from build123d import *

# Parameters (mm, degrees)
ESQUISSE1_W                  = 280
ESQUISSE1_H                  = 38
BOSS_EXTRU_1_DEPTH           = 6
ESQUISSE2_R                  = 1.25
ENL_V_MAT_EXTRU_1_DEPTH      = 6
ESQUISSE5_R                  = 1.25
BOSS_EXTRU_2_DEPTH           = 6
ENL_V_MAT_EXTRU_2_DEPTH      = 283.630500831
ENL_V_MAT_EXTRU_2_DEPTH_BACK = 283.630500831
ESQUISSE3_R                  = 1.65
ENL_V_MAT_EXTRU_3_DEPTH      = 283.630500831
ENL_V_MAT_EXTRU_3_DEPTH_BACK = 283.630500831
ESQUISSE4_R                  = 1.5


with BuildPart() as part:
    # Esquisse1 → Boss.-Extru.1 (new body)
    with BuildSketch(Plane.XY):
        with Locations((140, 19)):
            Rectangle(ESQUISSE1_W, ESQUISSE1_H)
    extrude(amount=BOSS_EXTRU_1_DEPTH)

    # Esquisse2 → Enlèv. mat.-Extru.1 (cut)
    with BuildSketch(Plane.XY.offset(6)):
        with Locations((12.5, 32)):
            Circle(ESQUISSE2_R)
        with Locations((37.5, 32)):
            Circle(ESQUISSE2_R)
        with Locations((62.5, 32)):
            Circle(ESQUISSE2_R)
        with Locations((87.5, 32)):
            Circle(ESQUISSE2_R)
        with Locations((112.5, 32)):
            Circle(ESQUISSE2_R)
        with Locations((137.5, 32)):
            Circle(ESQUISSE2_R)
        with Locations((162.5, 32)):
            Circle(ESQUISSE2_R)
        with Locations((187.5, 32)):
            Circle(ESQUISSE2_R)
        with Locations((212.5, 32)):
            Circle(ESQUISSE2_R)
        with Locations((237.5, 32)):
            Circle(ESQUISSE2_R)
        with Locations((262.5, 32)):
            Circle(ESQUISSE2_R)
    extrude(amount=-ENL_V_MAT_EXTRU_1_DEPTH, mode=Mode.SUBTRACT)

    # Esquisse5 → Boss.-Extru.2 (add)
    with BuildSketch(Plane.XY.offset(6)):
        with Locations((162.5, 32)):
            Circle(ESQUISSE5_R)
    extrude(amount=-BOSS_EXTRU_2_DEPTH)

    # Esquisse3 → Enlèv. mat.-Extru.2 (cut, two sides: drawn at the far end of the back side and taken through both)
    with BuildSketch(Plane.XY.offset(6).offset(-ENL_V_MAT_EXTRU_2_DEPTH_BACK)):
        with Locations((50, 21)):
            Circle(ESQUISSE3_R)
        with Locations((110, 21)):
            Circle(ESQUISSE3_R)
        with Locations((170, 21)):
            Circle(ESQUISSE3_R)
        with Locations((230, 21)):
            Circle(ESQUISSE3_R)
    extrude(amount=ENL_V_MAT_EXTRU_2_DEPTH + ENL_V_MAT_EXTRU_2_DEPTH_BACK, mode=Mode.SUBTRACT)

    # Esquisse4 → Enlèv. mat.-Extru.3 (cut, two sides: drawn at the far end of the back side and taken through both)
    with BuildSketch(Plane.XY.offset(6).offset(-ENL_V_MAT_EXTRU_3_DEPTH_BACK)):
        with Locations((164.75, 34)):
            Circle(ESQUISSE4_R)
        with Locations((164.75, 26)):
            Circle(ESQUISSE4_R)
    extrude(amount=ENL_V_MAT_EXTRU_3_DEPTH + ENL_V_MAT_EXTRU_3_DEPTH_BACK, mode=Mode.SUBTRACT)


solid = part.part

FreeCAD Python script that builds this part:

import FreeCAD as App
import Part
import Sketcher

V = App.Vector

doc = App.newDocument("Part")
body = doc.addObject("PartDesign::Body", "Body")

sketch1 = doc.addObject("Sketcher::SketchObject", "Sketch")
body.addObject(sketch1)
sketch1.AttachmentSupport = (doc.XY_Plane, [""])
sketch1.MapMode = "FlatFace"
sketch1.addGeometry([
    Part.LineSegment(V(0, 38, 0), V(0, 0, 0)),
    Part.LineSegment(V(0, 0, 0), V(280, 0, 0)),
    Part.LineSegment(V(280, 0, 0), V(280, 38, 0)),
    Part.LineSegment(V(280, 38, 0), V(0, 38, 0)),
], False)
sketch1.addConstraint([
    Sketcher.Constraint("Coincident", 0, 2, 1, 1),
    Sketcher.Constraint("Coincident", 1, 2, 2, 1),
    Sketcher.Constraint("Coincident", 2, 2, 3, 1),
    Sketcher.Constraint("Coincident", 3, 2, 0, 1),
    Sketcher.Constraint("Vertical", 0),
    Sketcher.Constraint("Horizontal", 1),
    Sketcher.Constraint("Vertical", 2),
    Sketcher.Constraint("Horizontal", 3),
    Sketcher.Constraint("Coincident", 0, 2, -1, 1),
    Sketcher.Constraint("DistanceX", 1, 1, 1, 2, 280.0),
    Sketcher.Constraint("DistanceY", 0, 2, 0, 1, 38.0),
])
pad1 = doc.addObject("PartDesign::Pad", "Pad")
body.addObject(pad1)
pad1.Profile = sketch1
pad1.Length = 6

sketch2 = doc.addObject("Sketcher::SketchObject", "Sketch001")
body.addObject(sketch2)
sketch2.AttachmentSupport = (doc.XY_Plane, [""])
sketch2.MapMode = "FlatFace"
sketch2.AttachmentOffset = App.Placement(V(0, 0, 6), App.Rotation())
sketch2.addGeometry([
    Part.Circle(V(12.5, 32, 0), V(0, 0, 1), 1.2),
    Part.Circle(V(37.5, 32, 0), V(0, 0, 1), 1.2),
    Part.Circle(V(62.5, 32, 0), V(0, 0, 1), 1.2),
    Part.Circle(V(87.5, 32, 0), V(0, 0, 1), 1.2),
    Part.Circle(V(112.5, 32, 0), V(0, 0, 1), 1.2),
    Part.Circle(V(137.5, 32, 0), V(0, 0, 1), 1.2),
    Part.Circle(V(162.5, 32, 0), V(0, 0, 1), 1.2),
    Part.Circle(V(187.5, 32, 0), V(0, 0, 1), 1.2),
    Part.Circle(V(212.5, 32, 0), V(0, 0, 1), 1.2),
    Part.Circle(V(237.5, 32, 0), V(0, 0, 1), 1.2),
    Part.Circle(V(262.5, 32, 0), V(0, 0, 1), 1.2),
], False)
sketch2.addConstraint([
    Sketcher.Constraint("Equal", 0, 1),
    Sketcher.Constraint("Equal", 1, 2),
    Sketcher.Constraint("Equal", 2, 3),
    Sketcher.Constraint("Equal", 3, 4),
    Sketcher.Constraint("Equal", 4, 5),
    Sketcher.Constraint("Equal", 5, 6),
    Sketcher.Constraint("Equal", 6, 7),
    Sketcher.Constraint("Equal", 7, 8),
    Sketcher.Constraint("Equal", 8, 9),
    Sketcher.Constraint("Equal", 9, 10),
    Sketcher.Constraint("Horizontal", 0, 3, 1, 3),
    Sketcher.Constraint("Horizontal", 1, 3, 2, 3),
    Sketcher.Constraint("Horizontal", 2, 3, 3, 3),
    Sketcher.Constraint("Horizontal", 3, 3, 4, 3),
    Sketcher.Constraint("Horizontal", 4, 3, 5, 3),
    Sketcher.Constraint("Horizontal", 5, 3, 6, 3),
    Sketcher.Constraint("Horizontal", 6, 3, 7, 3),
    Sketcher.Constraint("Horizontal", 7, 3, 8, 3),
    Sketcher.Constraint("Horizontal", 8, 3, 9, 3),
    Sketcher.Constraint("Horizontal", 9, 3, 10, 3),
    Sketcher.Constraint("Diameter", 0, 2.5),
    Sketcher.Constraint("DistanceY", -1, 1, 0, 3, 32.0),
    Sketcher.Constraint("DistanceX", 0, 3, 1, 3, 25.0),
    Sketcher.Constraint("DistanceX", 1, 3, 2, 3, 25.0),
    Sketcher.Constraint("DistanceX", 2, 3, 3, 3, 25.0),
    Sketcher.Constraint("DistanceX", 3, 3, 4, 3, 25.0),
    Sketcher.Constraint("DistanceX", 4, 3, 5, 3, 25.0),
    Sketcher.Constraint("DistanceX", 5, 3, 6, 3, 25.0),
    Sketcher.Constraint("DistanceX", 6, 3, 7, 3, 25.0),
    Sketcher.Constraint("DistanceX", 7, 3, 8, 3, 25.0),
    Sketcher.Constraint("DistanceX", 8, 3, 9, 3, 25.0),
    Sketcher.Constraint("DistanceX", 9, 3, 10, 3, 25.0),
    Sketcher.Constraint("DistanceX", -1, 1, 0, 3, 12.5),
])
pocket1 = doc.addObject("PartDesign::Pocket", "Pocket")
body.addObject(pocket1)
pocket1.Profile = sketch2
pocket1.Length = 6

sketch3 = doc.addObject("Sketcher::SketchObject", "Sketch002")
body.addObject(sketch3)
sketch3.AttachmentSupport = (doc.XY_Plane, [""])
sketch3.MapMode = "FlatFace"
sketch3.AttachmentOffset = App.Placement(V(0, 0, 6), App.Rotation())
sketch3.addGeometry(Part.Circle(V(162.5, 32, 0), V(0, 0, 1), 1.2), False)
sketch3.addConstraint([
    Sketcher.Constraint("Diameter", 0, 2.5),
    Sketcher.Constraint("DistanceY", -1, 1, 0, 3, 32.0),
    Sketcher.Constraint("DistanceX", -1, 1, 0, 3, 162.5),
])
pad2 = doc.addObject("PartDesign::Pad", "Pad001")
body.addObject(pad2)
pad2.Profile = sketch3
pad2.Length = 6
pad2.Reversed = True

sketch4 = doc.addObject("Sketcher::SketchObject", "Sketch003")
body.addObject(sketch4)
sketch4.AttachmentSupport = (doc.XY_Plane, [""])
sketch4.MapMode = "FlatFace"
sketch4.AttachmentOffset = App.Placement(V(0, 0, 6), App.Rotation())
sketch4.addGeometry([
    Part.Circle(V(50, 21, 0), V(0, 0, 1), 1.6),
    Part.Circle(V(110, 21, 0), V(0, 0, 1), 1.6),
    Part.Circle(V(170, 21, 0), V(0, 0, 1), 1.6),
    Part.Circle(V(230, 21, 0), V(0, 0, 1), 1.6),
], False)
sketch4.addConstraint([
    Sketcher.Constraint("Equal", 0, 1),
    Sketcher.Constraint("Equal", 1, 2),
    Sketcher.Constraint("Equal", 2, 3),
    Sketcher.Constraint("Horizontal", 0, 3, 1, 3),
    Sketcher.Constraint("Horizontal", 1, 3, 2, 3),
    Sketcher.Constraint("Horizontal", 2, 3, 3, 3),
    Sketcher.Constraint("Diameter", 0, 3.3),
    Sketcher.Constraint("DistanceX", -1, 1, 0, 3, 50.0),
    Sketcher.Constraint("DistanceY", -1, 1, 0, 3, 21.0),
    Sketcher.Constraint("DistanceX", -1, 1, 1, 3, 110.0),
    Sketcher.Constraint("DistanceX", -1, 1, 2, 3, 170.0),
    Sketcher.Constraint("DistanceX", -1, 1, 3, 3, 230.0),
])
pocket2 = doc.addObject("PartDesign::Pocket", "Pocket001")
body.addObject(pocket2)
pocket2.Profile = sketch4
pocket2.Type = "ThroughAll"
pocket2.Midplane = True

sketch5 = doc.addObject("Sketcher::SketchObject", "Sketch004")
body.addObject(sketch5)
sketch5.AttachmentSupport = (doc.XY_Plane, [""])
sketch5.MapMode = "FlatFace"
sketch5.AttachmentOffset = App.Placement(V(0, 0, 6), App.Rotation())
sketch5.addGeometry([
    Part.Circle(V(164.8, 34, 0), V(0, 0, 1), 1.5),
    Part.Circle(V(164.8, 26, 0), V(0, 0, 1), 1.5),
], False)
sketch5.addConstraint([
    Sketcher.Constraint("Equal", 0, 1),
    Sketcher.Constraint("Vertical", 0, 3, 1, 3),
    Sketcher.Constraint("Diameter", 0, 3.0),
    Sketcher.Constraint("DistanceY", -1, 1, 0, 3, 34.0),
    Sketcher.Constraint("DistanceY", -1, 1, 1, 3, 26.0),
    Sketcher.Constraint("DistanceX", -1, 1, 0, 3, 164.75),
])
pocket3 = doc.addObject("PartDesign::Pocket", "Pocket002")
body.addObject(pocket3)
pocket3.Profile = sketch5
pocket3.Type = "ThroughAll"
pocket3.Midplane = True

doc.recompute()
